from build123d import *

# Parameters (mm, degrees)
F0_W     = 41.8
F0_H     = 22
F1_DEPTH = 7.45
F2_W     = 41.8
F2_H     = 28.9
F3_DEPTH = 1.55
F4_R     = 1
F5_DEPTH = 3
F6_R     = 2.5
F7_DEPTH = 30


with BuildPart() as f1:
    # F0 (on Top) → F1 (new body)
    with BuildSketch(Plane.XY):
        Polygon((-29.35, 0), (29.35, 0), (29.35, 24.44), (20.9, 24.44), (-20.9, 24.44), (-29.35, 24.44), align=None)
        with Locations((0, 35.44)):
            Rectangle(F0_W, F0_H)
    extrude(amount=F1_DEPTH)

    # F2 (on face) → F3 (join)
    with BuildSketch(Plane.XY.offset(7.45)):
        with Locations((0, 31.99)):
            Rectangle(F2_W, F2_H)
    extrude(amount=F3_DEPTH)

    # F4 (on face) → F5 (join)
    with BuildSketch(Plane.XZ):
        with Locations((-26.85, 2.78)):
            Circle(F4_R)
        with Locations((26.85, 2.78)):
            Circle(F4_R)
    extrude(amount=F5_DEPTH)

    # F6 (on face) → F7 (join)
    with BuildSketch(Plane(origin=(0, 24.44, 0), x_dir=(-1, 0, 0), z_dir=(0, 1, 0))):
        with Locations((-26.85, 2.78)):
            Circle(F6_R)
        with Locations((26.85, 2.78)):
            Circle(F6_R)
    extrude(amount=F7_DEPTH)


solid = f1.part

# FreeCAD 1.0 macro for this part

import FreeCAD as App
import Part
import Sketcher


def add_polygon(sketch, points):
    """Adds a closed chain of lines whose ends are joined by coincident constraints."""
    first, n = sketch.GeometryCount, len(points)
    for a, b in zip(points, points[1:] + points[:1]):
        sketch.addGeometry(Part.LineSegment(App.Vector(*a, 0), App.Vector(*b, 0)), False)
    for i in range(n):
        sketch.addConstraint(Sketcher.Constraint("Coincident", first + i, 2, first + (i + 1) % n, 1))

doc = App.newDocument("Part")
body = doc.addObject("PartDesign::Body", "Body")

# Sketch on XY plane
sketch1 = body.newObject("Sketcher::SketchObject", "Sketch")
sketch1.AttachmentSupport = (doc.getObject("XY_Plane"), [""])
sketch1.MapMode = "FlatFace"
add_polygon(sketch1, [(-29.35, 0), (29.35, 0), (29.35, 24.44), (20.9, 24.44), (20.9, 46.44), (-20.9, 46.44), (-20.9, 24.44), (-29.35, 24.44)])  # lines 0-7
sketch1.addConstraint([
    Sketcher.Constraint("Horizontal", 0),
    Sketcher.Constraint("Vertical", 1),
    Sketcher.Constraint("Horizontal", 2),
    Sketcher.Constraint("Vertical", 3),
    Sketcher.Constraint("Horizontal", 4),
    Sketcher.Constraint("Vertical", 5),
    Sketcher.Constraint("Horizontal", 6),
    Sketcher.Constraint("Vertical", 7),
    Sketcher.Constraint("Symmetric", 0, 2, 7, 2, -1, 1),
    Sketcher.Constraint("Symmetric", 2, 2, 5, 2, -2),
    Sketcher.Constraint("DistanceY", 3, 1, 3, 2, 22.0),
    Sketcher.Constraint("DistanceX", 0, 1, 0, 2, 58.7),
    Sketcher.Constraint("DistanceX", 4, 2, 4, 1, 41.8),
    Sketcher.Constraint("DistanceY", 1, 1, 1, 2, 24.44),
])
pad1 = body.newObject("PartDesign::Pad", "Pad")
pad1.Profile = sketch1
pad1.Length = 7.45

# Sketch on XY plane
sketch2 = body.newObject("Sketcher::SketchObject", "Sketch001")
sketch2.AttachmentSupport = (doc.getObject("XY_Plane"), [""])
sketch2.MapMode = "FlatFace"
sketch2.AttachmentOffset = App.Placement(App.Vector(0, 0, 7.45), App.Rotation())
add_polygon(sketch2, [(-20.9, 46.44), (-20.9, 17.54), (20.9, 17.54), (20.9, 46.44)])  # lines 0-3
sketch2.addConstraint([
    Sketcher.Constraint("Vertical", 0),
    Sketcher.Constraint("Horizontal", 1),
    Sketcher.Constraint("Vertical", 2),
    Sketcher.Constraint("Horizontal", 3),
    Sketcher.Constraint("DistanceX", 1, 1, 1, 2, 41.8),
    Sketcher.Constraint("DistanceY", 0, 2, 0, 1, 28.9),
    Sketcher.Constraint("DistanceX", 0, 2, -1, 1, 20.9),
    Sketcher.Constraint("DistanceY", -1, 1, 0, 2, 17.54),
])
pad2 = body.newObject("PartDesign::Pad", "Pad001")
pad2.Profile = sketch2
pad2.Length = 1.55

# Sketch on XZ plane
sketch3 = body.newObject("Sketcher::SketchObject", "Sketch002")
sketch3.AttachmentSupport = (doc.getObject("XZ_Plane"), [""])
sketch3.MapMode = "FlatFace"
sketch3.addGeometry([
    Part.Circle(App.Vector(-26.85, 2.78, 0), App.Vector(0, 0, 1), 1),
    Part.Circle(App.Vector(26.85, 2.78, 0), App.Vector(0, 0, 1), 1),
], False)
sketch3.addConstraint([
    Sketcher.Constraint("Equal", 0, 1),
    Sketcher.Constraint("Symmetric", 0, 3, 1, 3, -2),
    Sketcher.Constraint("Diameter", 0, 2.0),
    Sketcher.Constraint("DistanceX", 0, 3, 1, 3, 53.7),
    Sketcher.Constraint("DistanceY", -1, 1, 0, 3, 2.78),
])
pad3 = body.newObject("PartDesign::Pad", "Pad002")
pad3.Profile = sketch3
pad3.Length = 3

# Sketch on XZ plane
sketch4 = body.newObject("Sketcher::SketchObject", "Sketch003")
sketch4.AttachmentSupport = (doc.getObject("XZ_Plane"), [""])
sketch4.MapMode = "FlatFace"
sketch4.AttachmentOffset = App.Placement(App.Vector(0, 0, -24.44), App.Rotation())
sketch4.addGeometry([
    Part.Circle(App.Vector(26.85, 2.78, 0), App.Vector(0, 0, 1), 2.5),
    Part.Circle(App.Vector(-26.85, 2.78, 0), App.Vector(0, 0, 1), 2.5),
], False)
sketch4.addConstraint([
    Sketcher.Constraint("Equal", 0, 1),
    Sketcher.Constraint("Symmetric", 0, 3, 1, 3, -2),
    Sketcher.Constraint("Diameter", 0, 5.0),
    Sketcher.Constraint("DistanceX", 1, 3, 0, 3, 53.7),
    Sketcher.Constraint("DistanceY", -1, 1, 0, 3, 2.78),
])
pad4 = body.newObject("PartDesign::Pad", "Pad003")
pad4.Profile = sketch4
pad4.Length = 30
pad4.Reversed = True

doc.recompute()
